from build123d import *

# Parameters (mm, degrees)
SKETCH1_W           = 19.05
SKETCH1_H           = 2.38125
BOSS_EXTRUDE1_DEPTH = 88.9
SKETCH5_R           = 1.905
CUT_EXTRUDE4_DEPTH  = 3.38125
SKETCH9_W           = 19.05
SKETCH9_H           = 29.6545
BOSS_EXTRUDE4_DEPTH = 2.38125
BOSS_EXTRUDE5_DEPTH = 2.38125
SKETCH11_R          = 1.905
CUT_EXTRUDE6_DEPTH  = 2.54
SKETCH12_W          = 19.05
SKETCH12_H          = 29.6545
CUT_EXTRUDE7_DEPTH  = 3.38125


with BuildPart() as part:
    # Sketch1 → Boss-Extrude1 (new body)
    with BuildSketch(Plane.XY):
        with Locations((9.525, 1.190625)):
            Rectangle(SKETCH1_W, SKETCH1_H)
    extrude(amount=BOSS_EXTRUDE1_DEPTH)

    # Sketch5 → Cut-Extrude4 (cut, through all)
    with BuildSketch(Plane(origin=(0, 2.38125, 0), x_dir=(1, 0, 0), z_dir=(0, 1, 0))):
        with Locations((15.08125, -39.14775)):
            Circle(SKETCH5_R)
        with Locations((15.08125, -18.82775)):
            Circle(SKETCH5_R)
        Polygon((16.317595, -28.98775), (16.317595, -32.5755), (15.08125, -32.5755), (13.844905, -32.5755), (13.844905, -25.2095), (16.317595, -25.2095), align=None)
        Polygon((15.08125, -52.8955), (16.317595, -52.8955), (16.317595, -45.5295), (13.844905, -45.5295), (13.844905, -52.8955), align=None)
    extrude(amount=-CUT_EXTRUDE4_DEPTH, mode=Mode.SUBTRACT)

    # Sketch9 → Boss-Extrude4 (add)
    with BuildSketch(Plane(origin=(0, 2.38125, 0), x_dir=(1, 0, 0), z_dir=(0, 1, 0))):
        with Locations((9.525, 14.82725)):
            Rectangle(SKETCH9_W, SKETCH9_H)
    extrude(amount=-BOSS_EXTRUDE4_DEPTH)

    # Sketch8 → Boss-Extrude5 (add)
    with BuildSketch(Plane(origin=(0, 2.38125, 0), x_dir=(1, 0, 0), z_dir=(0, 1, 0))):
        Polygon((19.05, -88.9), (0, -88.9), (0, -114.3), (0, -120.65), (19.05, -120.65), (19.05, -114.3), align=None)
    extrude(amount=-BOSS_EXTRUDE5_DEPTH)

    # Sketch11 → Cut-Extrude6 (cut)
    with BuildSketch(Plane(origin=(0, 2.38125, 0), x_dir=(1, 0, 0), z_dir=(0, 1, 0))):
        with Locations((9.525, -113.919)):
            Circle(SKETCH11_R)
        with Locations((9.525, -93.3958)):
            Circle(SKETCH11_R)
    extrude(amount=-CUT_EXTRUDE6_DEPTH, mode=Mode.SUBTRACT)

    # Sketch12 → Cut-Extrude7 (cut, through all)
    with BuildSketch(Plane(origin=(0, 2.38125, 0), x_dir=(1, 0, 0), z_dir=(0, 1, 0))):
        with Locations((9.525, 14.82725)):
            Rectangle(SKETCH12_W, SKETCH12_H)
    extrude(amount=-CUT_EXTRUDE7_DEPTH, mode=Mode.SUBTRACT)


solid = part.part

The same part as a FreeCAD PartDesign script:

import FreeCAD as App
import Part
import Sketcher
Q = App.Units.Quantity


def add_polygon(sketch, points):
    """Adds a closed chain of lines whose ends are joined by coincident constraints."""
    first, n = sketch.GeometryCount, len(points)
    for a, b in zip(points, points[1:] + points[:1]):
        sketch.addGeometry(Part.LineSegment(App.Vector(*a, 0), App.Vector(*b, 0)), False)
    for i in range(n):
        sketch.addConstraint(Sketcher.Constraint("Coincident", first + i, 2, first + (i + 1) % n, 1))

doc = App.newDocument("Part")
body = doc.addObject("PartDesign::Body", "Body")

# Sketch on XY plane
sketch1 = body.newObject("Sketcher::SketchObject", "Sketch")
sketch1.AttachmentSupport = (doc.getObject("XY_Plane"), [""])
sketch1.MapMode = "FlatFace"
add_polygon(sketch1, [(0, 2.4), (0, 0), (19.1, 0), (19.1, 2.4)])  # lines 0-3
sketch1.addConstraint([
    Sketcher.Constraint("Vertical", 0),
    Sketcher.Constraint("Horizontal", 1),
    Sketcher.Constraint("Vertical", 2),
    Sketcher.Constraint("Horizontal", 3),
    Sketcher.Constraint("Coincident", 0, 2, -1, 1),
    Sketcher.Constraint("DistanceX", 1, 1, 1, 2, Q("0.75 in")),
    Sketcher.Constraint("DistanceY", 0, 2, 0, 1, Q("0.09375 in")),
])
pad1 = body.newObject("PartDesign::Pad", "Pad")
pad1.Profile = sketch1
pad1.Length = Q("3.5 in")

# Sketch on XZ plane
sketch2 = body.newObject("Sketcher::SketchObject", "Sketch001")
sketch2.AttachmentSupport = (doc.getObject("XZ_Plane"), [""])
sketch2.MapMode = "FlatFace"
sketch2.AttachmentOffset = App.Placement(App.Vector(0, 0, -0.09375 * 25.4), App.Rotation())
sketch2.addGeometry(Part.Circle(App.Vector(15.1, 39.1, 0), App.Vector(0, 0, 1), 1.9), False)  # 0
sketch2.addGeometry(Part.Circle(App.Vector(15.1, 18.8, 0), App.Vector(0, 0, 1), 1.9), False)  # 1
add_polygon(sketch2, [(16.3, 32.6), (16.3, 25.2), (13.8, 25.2), (13.8, 32.6)])  # lines 2-5
add_polygon(sketch2, [(16.3, 52.9), (16.3, 45.5), (13.8, 45.5), (13.8, 52.9)])  # lines 6-9
sketch2.addConstraint([
    Sketcher.Constraint("Vertical", 2),
    Sketcher.Constraint("Horizontal", 3),
    Sketcher.Constraint("Vertical", 4),
    Sketcher.Constraint("Horizontal", 5),
    Sketcher.Constraint("Vertical", 6),
    Sketcher.Constraint("Horizontal", 7),
    Sketcher.Constraint("Vertical", 8),
    Sketcher.Constraint("Horizontal", 9),
    Sketcher.Constraint("Equal", 0, 1),
    Sketcher.Constraint("Vertical", 0, 3, 1, 3),
    Sketcher.Constraint("Vertical", 5, 2, 6, 2),
    Sketcher.Constraint("Vertical", 4, 2, 7, 2),
    Sketcher.Constraint("Equal", 4, 6),
    Sketcher.Constraint("Diameter", 0, Q("0.15 in")),
    Sketcher.Constraint("DistanceY", 2, 2, 2, 1, Q("0.29 in")),
    Sketcher.Constraint("DistanceY", 1, 3, 0, 3, Q("0.8 in")),
    Sketcher.Constraint("DistanceY", 2, 2, 6, 2, Q("0.8 in")),
    Sketcher.Constraint("DistanceX", -1, 1, 0, 3, Q("0.59375 in")),
    Sketcher.Constraint("DistanceY", -1, 1, 2, 2, Q("0.9925 in")),
    Sketcher.Constraint("DistanceX", 3, 2, 3, 1, 2.47269),
    Sketcher.Constraint("DistanceY", -1, 1, 0, 3, 39.14775),
    Sketcher.Constraint("DistanceX", -1, 1, 2, 2, 16.317595),
])
pocket1 = body.newObject("PartDesign::Pocket", "Pocket")
pocket1.Profile = sketch2
pocket1.Type = "ThroughAll"
pocket1.Reversed = True

# Sketch on XZ plane
sketch3 = body.newObject("Sketcher::SketchObject", "Sketch002")
sketch3.AttachmentSupport = (doc.getObject("XZ_Plane"), [""])
sketch3.MapMode = "FlatFace"
sketch3.AttachmentOffset = App.Placement(App.Vector(0, 0, -0.09375 * 25.4), App.Rotation())
add_polygon(sketch3, [(0, -30), (0, 0), (19, 0), (19, -30)])  # lines 0-3
sketch3.addConstraint([
    Sketcher.Constraint("Vertical", 0),
    Sketcher.Constraint("Horizontal", 1),
    Sketcher.Constraint("Vertical", 2),
    Sketcher.Constraint("Horizontal", 3),
    Sketcher.Constraint("Coincident", 0, 2, -1, 1),
    Sketcher.Constraint("DistanceX", 1, 1, 1, 2, Q("0.75 in")),
    Sketcher.Constraint("DistanceY", 0, 1, 0, 2, Q("1.1675 in")),
])
pad2 = body.newObject("PartDesign::Pad", "Pad001")
pad2.Profile = sketch3
pad2.Length = Q("0.09375 in")

# Sketch on XZ plane
sketch4 = body.newObject("Sketcher::SketchObject", "Sketch003")
sketch4.AttachmentSupport = (doc.getObject("XZ_Plane"), [""])
sketch4.MapMode = "FlatFace"
sketch4.AttachmentOffset = App.Placement(App.Vector(0, 0, -0.09375 * 25.4), App.Rotation())
add_polygon(sketch4, [(19, 89), (0, 89), (0, 121), (19, 121)])  # lines 0-3
sketch4.addConstraint([
    Sketcher.Constraint("Horizontal", 0),
    Sketcher.Constraint("Vertical", 1),
    Sketcher.Constraint("Horizontal", 2),
    Sketcher.Constraint("Vertical", 3),
    Sketcher.Constraint("PointOnObject", 0, 2, -2),
    Sketcher.Constraint("DistanceX", 0, 2, 0, 1, Q("0.75 in")),
    Sketcher.Constraint("DistanceY", 1, 1, 1, 2, Q("1.25 in")),
    Sketcher.Constraint("DistanceY", -1, 1, 0, 2, Q("3.5 in")),
])
pad3 = body.newObject("PartDesign::Pad", "Pad002")
pad3.Profile = sketch4
pad3.Length = Q("0.09375 in")

# Sketch on XZ plane
sketch5 = body.newObject("Sketcher::SketchObject", "Sketch004")
sketch5.AttachmentSupport = (doc.getObject("XZ_Plane"), [""])
sketch5.MapMode = "FlatFace"
sketch5.AttachmentOffset = App.Placement(App.Vector(0, 0, -0.09375 * 25.4), App.Rotation())
sketch5.addGeometry([
    Part.Circle(App.Vector(9.5, 113.9, 0), App.Vector(0, 0, 1), 1.9),
    Part.Circle(App.Vector(9.5, 93.4, 0), App.Vector(0, 0, 1), 1.9),
], False)
sketch5.addConstraint([
    Sketcher.Constraint("Equal", 0, 1),
    Sketcher.Constraint("Vertical", 0, 3, 1, 3),
    Sketcher.Constraint("Diameter", 0, Q("0.15 in")),
    Sketcher.Constraint("DistanceX", -1, 1, 0, 3, Q("0.375 in")),
    Sketcher.Constraint("DistanceY", -1, 1, 0, 3, Q("4.485 in")),
    Sketcher.Constraint("DistanceY", -1, 1, 1, 3, Q("3.677 in")),
])
pocket2 = body.newObject("PartDesign::Pocket", "Pocket001")
pocket2.Profile = sketch5
pocket2.Length = Q("0.1 in")
pocket2.Reversed = True

# Sketch on XZ plane
sketch6 = body.newObject("Sketcher::SketchObject", "Sketch005")
sketch6.AttachmentSupport = (doc.getObject("XZ_Plane"), [""])
sketch6.MapMode = "FlatFace"
sketch6.AttachmentOffset = App.Placement(App.Vector(0, 0, -0.09375 * 25.4), App.Rotation())
add_polygon(sketch6, [(0, -30), (0, 0), (19, 0), (19, -30)])  # lines 0-3
sketch6.addConstraint([
    Sketcher.Constraint("Vertical", 0),
    Sketcher.Constraint("Horizontal", 1),
    Sketcher.Constraint("Vertical", 2),
    Sketcher.Constraint("Horizontal", 3),
    Sketcher.Constraint("Coincident", 0, 2, -1, 1),
    Sketcher.Constraint("DistanceX", 1, 1, 1, 2, Q("0.75 in")),
    Sketcher.Constraint("DistanceY", 0, 1, 0, 2, Q("1.1675 in")),
])
pocket3 = body.newObject("PartDesign::Pocket", "Pocket002")
pocket3.Profile = sketch6
pocket3.Type = "ThroughAll"
pocket3.Reversed = True

doc.recompute()
